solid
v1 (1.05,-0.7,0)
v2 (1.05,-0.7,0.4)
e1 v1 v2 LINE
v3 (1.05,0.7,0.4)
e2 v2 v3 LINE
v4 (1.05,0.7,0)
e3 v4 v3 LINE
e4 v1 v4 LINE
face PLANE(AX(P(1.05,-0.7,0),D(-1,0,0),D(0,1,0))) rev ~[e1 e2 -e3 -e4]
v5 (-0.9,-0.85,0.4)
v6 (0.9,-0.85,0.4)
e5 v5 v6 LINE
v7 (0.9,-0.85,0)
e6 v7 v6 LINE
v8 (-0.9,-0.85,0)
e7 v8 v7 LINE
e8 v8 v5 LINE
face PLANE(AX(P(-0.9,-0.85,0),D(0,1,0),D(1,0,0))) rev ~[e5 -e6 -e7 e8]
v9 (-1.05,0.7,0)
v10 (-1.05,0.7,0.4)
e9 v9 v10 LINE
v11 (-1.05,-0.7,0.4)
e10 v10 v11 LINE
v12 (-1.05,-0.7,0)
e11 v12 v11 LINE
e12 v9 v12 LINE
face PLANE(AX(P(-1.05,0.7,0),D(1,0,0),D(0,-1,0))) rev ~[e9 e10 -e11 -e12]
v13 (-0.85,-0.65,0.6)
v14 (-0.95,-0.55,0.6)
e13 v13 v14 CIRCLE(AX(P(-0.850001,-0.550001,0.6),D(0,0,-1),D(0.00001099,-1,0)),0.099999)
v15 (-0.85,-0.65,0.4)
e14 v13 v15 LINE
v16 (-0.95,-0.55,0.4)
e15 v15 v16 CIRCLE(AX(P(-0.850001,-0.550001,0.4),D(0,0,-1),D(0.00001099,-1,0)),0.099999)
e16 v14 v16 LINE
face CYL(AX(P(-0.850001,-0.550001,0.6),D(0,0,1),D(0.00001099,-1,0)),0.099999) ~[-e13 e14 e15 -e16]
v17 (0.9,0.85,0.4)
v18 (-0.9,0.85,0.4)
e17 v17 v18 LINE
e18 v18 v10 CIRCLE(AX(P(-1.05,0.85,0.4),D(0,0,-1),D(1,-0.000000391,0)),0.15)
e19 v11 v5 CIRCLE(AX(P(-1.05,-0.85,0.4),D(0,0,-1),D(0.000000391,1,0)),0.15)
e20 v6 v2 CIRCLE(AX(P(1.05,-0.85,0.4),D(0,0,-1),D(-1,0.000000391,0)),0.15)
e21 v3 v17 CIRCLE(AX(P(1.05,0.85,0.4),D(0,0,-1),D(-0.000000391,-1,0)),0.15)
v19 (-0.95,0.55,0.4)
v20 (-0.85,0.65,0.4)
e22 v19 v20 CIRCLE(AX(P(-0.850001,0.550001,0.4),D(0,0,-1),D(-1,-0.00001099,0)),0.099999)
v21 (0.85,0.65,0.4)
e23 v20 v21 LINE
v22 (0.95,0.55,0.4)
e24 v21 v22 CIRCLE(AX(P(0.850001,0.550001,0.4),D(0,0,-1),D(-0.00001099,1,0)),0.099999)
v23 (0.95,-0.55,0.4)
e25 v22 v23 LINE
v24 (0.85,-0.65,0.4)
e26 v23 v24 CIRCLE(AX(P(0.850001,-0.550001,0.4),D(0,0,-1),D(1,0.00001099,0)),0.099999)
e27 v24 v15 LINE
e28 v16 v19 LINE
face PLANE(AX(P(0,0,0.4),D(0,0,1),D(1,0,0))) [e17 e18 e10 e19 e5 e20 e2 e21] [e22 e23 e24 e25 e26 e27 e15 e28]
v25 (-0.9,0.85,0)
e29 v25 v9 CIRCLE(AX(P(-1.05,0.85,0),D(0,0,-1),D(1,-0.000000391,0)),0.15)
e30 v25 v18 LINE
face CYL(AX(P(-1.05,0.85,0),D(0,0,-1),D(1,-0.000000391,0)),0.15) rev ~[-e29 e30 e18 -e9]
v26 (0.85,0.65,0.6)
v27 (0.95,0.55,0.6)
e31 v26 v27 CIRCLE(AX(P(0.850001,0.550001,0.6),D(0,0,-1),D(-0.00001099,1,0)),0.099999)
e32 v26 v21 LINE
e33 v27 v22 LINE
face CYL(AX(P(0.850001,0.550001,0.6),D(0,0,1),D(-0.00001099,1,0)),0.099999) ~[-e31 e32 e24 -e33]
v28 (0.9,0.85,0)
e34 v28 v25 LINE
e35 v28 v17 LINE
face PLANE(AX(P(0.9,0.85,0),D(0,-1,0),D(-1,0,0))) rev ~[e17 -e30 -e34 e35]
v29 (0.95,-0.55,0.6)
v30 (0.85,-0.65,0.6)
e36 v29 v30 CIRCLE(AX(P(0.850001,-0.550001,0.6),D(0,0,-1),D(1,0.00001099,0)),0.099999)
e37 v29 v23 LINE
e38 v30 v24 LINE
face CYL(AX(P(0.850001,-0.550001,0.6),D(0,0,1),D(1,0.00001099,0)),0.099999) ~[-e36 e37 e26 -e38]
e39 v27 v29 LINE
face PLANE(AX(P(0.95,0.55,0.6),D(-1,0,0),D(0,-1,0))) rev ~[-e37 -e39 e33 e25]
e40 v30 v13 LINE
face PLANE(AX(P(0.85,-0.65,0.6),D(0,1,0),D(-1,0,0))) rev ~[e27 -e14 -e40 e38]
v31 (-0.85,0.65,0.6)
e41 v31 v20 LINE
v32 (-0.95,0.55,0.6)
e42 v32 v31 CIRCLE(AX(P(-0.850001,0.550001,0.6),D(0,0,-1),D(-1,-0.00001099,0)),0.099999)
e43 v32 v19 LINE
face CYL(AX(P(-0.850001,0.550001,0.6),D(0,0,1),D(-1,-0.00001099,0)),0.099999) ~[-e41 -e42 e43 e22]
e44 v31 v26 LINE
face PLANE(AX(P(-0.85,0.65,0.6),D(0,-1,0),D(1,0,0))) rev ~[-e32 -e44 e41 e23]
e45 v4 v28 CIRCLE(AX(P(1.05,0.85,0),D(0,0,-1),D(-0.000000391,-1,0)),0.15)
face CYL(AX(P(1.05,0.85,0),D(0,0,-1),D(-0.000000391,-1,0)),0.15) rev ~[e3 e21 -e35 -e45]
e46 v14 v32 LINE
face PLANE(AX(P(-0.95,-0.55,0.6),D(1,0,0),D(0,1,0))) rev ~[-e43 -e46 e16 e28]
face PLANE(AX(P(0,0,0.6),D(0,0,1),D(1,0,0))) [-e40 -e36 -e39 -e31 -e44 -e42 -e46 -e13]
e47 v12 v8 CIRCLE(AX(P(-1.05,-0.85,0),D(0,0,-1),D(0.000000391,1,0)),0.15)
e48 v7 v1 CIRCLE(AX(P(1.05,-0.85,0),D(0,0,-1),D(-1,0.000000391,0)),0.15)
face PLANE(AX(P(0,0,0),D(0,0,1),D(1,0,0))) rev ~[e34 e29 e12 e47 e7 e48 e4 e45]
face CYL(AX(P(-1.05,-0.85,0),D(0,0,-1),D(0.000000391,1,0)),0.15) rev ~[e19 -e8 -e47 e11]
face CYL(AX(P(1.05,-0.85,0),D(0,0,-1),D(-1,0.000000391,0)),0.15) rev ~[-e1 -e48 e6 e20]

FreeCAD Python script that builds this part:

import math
import FreeCAD as App
import Part
import Sketcher

V = App.Vector
Q = App.Units.Quantity

doc = App.newDocument("Part")
body = doc.addObject("PartDesign::Body", "Body")

sketch1 = doc.addObject("Sketcher::SketchObject", "Sketch")
body.addObject(sketch1)
sketch1.AttachmentSupport = (doc.XY_Plane, [""])
sketch1.MapMode = "FlatFace"
sketch1.addGeometry(Part.LineSegment(V(-0.9, -0.85, 0), V(0.9, -0.85, 0)), False)
sketch1.addGeometry(Part.ArcOfCircle(Part.Circle(V(1.05, -0.85, 0), V(0, 0, 1), 0.15), math.radians(90.000023), math.radians(179.999977)), False)
sketch1.addGeometry(Part.LineSegment(V(1.05, -0.7, 0), V(1.05, 0.7, 0)), False)
sketch1.addGeometry(Part.ArcOfCircle(Part.Circle(V(1.05, 0.85, 0), V(0, 0, 1), 0.15), math.radians(-179.999977), math.radians(-90.000023)), False)
sketch1.addGeometry(Part.LineSegment(V(0.9, 0.85, 0), V(-0.9, 0.85, 0)), False)
sketch1.addGeometry(Part.ArcOfCircle(Part.Circle(V(-1.05, 0.85, 0), V(0, 0, 1), 0.15), math.radians(-89.999977), math.radians(-0.000023)), False)
sketch1.addGeometry(Part.LineSegment(V(-1.05, 0.7, 0), V(-1.05, -0.7, 0)), False)
sketch1.addGeometry(Part.ArcOfCircle(Part.Circle(V(-1.05, -0.85, 0), V(0, 0, 1), 0.15), math.radians(0.000023), math.radians(89.999977)), False)
sketch1.addConstraint(Sketcher.Constraint("Coincident", 0, 2, 1, 2))
sketch1.addConstraint(Sketcher.Constraint("Coincident", 1, 1, 2, 1))
sketch1.addConstraint(Sketcher.Constraint("Coincident", 2, 2, 3, 2))
sketch1.addConstraint(Sketcher.Constraint("Coincident", 3, 1, 4, 1))
sketch1.addConstraint(Sketcher.Constraint("Coincident", 4, 2, 5, 2))
sketch1.addConstraint(Sketcher.Constraint("Coincident", 5, 1, 6, 1))
sketch1.addConstraint(Sketcher.Constraint("Coincident", 6, 2, 7, 2))
sketch1.addConstraint(Sketcher.Constraint("Coincident", 7, 1, 0, 1))
sketch1.addConstraint(Sketcher.Constraint("Horizontal", 0))
sketch1.addConstraint(Sketcher.Constraint("Vertical", 2))
sketch1.addConstraint(Sketcher.Constraint("Horizontal", 4))
sketch1.addConstraint(Sketcher.Constraint("Vertical", 6))
sketch1.addConstraint(Sketcher.Constraint("Equal", 1, 3))
sketch1.addConstraint(Sketcher.Constraint("Equal", 3, 5))
sketch1.addConstraint(Sketcher.Constraint("Equal", 5, 7))
sketch1.addConstraint(Sketcher.Constraint("Symmetric", 1, 3, 5, 3, -1, 1))
sketch1.addConstraint(Sketcher.Constraint("Symmetric", 3, 3, 7, 3, -1, 1))
sketch1.addConstraint(Sketcher.Constraint("Symmetric", 3, 3, 5, 3, -2))
sketch1.addConstraint(Sketcher.Constraint("Horizontal", 7, 3, 0, 2))
sketch1.addConstraint(Sketcher.Constraint("Horizontal", 5, 3, 3, 1))
sketch1.addConstraint(Sketcher.Constraint("Vertical", 3, 3, 1, 1))
sketch1.addConstraint(Sketcher.Constraint("Vertical", 7, 3, 5, 1))
sketch1.addConstraint(Sketcher.Constraint("Radius", 1, Q("0.15 mm")))
sketch1.addConstraint(Sketcher.Constraint("DistanceX", 0, 1, 0, 2, Q("1.8 mm")))
sketch1.addConstraint(Sketcher.Constraint("DistanceY", 2, 1, 2, 2, Q("1.4 mm")))
pad1 = doc.addObject("PartDesign::Pad", "Pad")
body.addObject(pad1)
pad1.Profile = sketch1
pad1.Length = 0.6
body2 = doc.addObject("PartDesign::Body", "Body001")

sketch2 = doc.addObject("Sketcher::SketchObject", "Sketch001")
body2.addObject(sketch2)
sketch2.AttachmentSupport = (doc.getObject("XY_Plane001"), [""])
sketch2.MapMode = "FlatFace"
sketch2.AttachmentOffset = App.Placement(V(0, 0, 0.6), App.Rotation())
sketch2.addGeometry(Part.LineSegment(V(-1.869811, 1.47827, 0), V(-1.869811, -1.47827, 0)), False)
sketch2.addGeometry(Part.LineSegment(V(-1.869811, -1.47827, 0), V(1.869811, -1.47827, 0)), False)
sketch2.addGeometry(Part.LineSegment(V(1.869811, -1.47827, 0), V(1.869811, 1.47827, 0)), False)
sketch2.addGeometry(Part.LineSegment(V(1.869811, 1.47827, 0), V(-1.869811, 1.47827, 0)), False)
sketch2.addGeometry(Part.LineSegment(V(0.95, 0.55, 0), V(0.95, -0.55, 0)), False)
sketch2.addGeometry(Part.ArcOfCircle(Part.Circle(V(0.850001, -0.550001, 0), V(0, 0, 1), 0.099999), math.radians(-90.00063), math.radians(0.00063)), False)
sketch2.addGeometry(Part.LineSegment(V(0.85, -0.65, 0), V(-0.85, -0.65, 0)), False)
sketch2.addGeometry(Part.ArcOfCircle(Part.Circle(V(-0.850001, -0.550001, 0), V(0, 0, 1), 0.099999), math.radians(179.99937), math.radians(270.00063)), False)
sketch2.addGeometry(Part.LineSegment(V(-0.95, -0.55, 0), V(-0.95, 0.55, 0)), False)
sketch2.addGeometry(Part.ArcOfCircle(Part.Circle(V(-0.850001, 0.550001, 0), V(0, 0, 1), 0.099999), math.radians(89.99937), math.radians(180.00063)), False)
sketch2.addGeometry(Part.LineSegment(V(-0.85, 0.65, 0), V(0.85, 0.65, 0)), False)
sketch2.addGeometry(Part.ArcOfCircle(Part.Circle(V(0.850001, 0.550001, 0), V(0, 0, 1), 0.099999), math.radians(-0.00063), math.radians(90.00063)), False)
sketch2.addConstraint(Sketcher.Constraint("Coincident", 0, 2, 1, 1))
sketch2.addConstraint(Sketcher.Constraint("Coincident", 1, 2, 2, 1))
sketch2.addConstraint(Sketcher.Constraint("Coincident", 2, 2, 3, 1))
sketch2.addConstraint(Sketcher.Constraint("Coincident", 3, 2, 0, 1))
sketch2.addConstraint(Sketcher.Constraint("Coincident", 4, 2, 5, 2))
sketch2.addConstraint(Sketcher.Constraint("Coincident", 5, 1, 6, 1))
sketch2.addConstraint(Sketcher.Constraint("Coincident", 6, 2, 7, 2))
sketch2.addConstraint(Sketcher.Constraint("Coincident", 7, 1, 8, 1))
sketch2.addConstraint(Sketcher.Constraint("Coincident", 8, 2, 9, 2))
sketch2.addConstraint(Sketcher.Constraint("Coincident", 9, 1, 10, 1))
sketch2.addConstraint(Sketcher.Constraint("Coincident", 10, 2, 11, 2))
sketch2.addConstraint(Sketcher.Constraint("Coincident", 11, 1, 4, 1))
sketch2.addConstraint(Sketcher.Constraint("Vertical", 0))
sketch2.addConstraint(Sketcher.Constraint("Horizontal", 1))
sketch2.addConstraint(Sketcher.Constraint("Vertical", 2))
sketch2.addConstraint(Sketcher.Constraint("Horizontal", 3))
sketch2.addConstraint(Sketcher.Constraint("Vertical", 4))
sketch2.addConstraint(Sketcher.Constraint("Horizontal", 6))
sketch2.addConstraint(Sketcher.Constraint("Vertical", 8))
sketch2.addConstraint(Sketcher.Constraint("Horizontal", 10))
sketch2.addConstraint(Sketcher.Constraint("Equal", 5, 7))
sketch2.addConstraint(Sketcher.Constraint("Equal", 7, 9))
sketch2.addConstraint(Sketcher.Constraint("Equal", 9, 11))
sketch2.addConstraint(Sketcher.Constraint("Symmetric", 5, 3, 9, 3, -1, 1))
sketch2.addConstraint(Sketcher.Constraint("Symmetric", 0, 2, 2, 2, -1, 1))
sketch2.addConstraint(Sketcher.Constraint("Horizontal", 7, 3, 4, 2))
sketch2.addConstraint(Sketcher.Constraint("Horizontal", 4, 2, 7, 1))
sketch2.addConstraint(Sketcher.Constraint("Horizontal", 11, 3, 8, 2))
sketch2.addConstraint(Sketcher.Constraint("Horizontal", 8, 2, 11, 1))
sketch2.addConstraint(Sketcher.Constraint("Vertical", 11, 3, 5, 1))
sketch2.addConstraint(Sketcher.Constraint("Vertical", 9, 3, 6, 2))
sketch2.addConstraint(Sketcher.Constraint("Vertical", 6, 2, 9, 1))
sketch2.addConstraint(Sketcher.Constraint("Vertical", 5, 1, 10, 2))
sketch2.addConstraint(Sketcher.Constraint("Radius", 5, Q("0.099999 mm")))
sketch2.addConstraint(Sketcher.Constraint("DistanceX", 6, 2, 6, 1, Q("1.7 mm")))
sketch2.addConstraint(Sketcher.Constraint("DistanceY", 4, 2, 4, 1, Q("1.1 mm")))
sketch2.addConstraint(Sketcher.Constraint("DistanceX", 1, 1, 1, 2, Q("3.739622 mm")))
sketch2.addConstraint(Sketcher.Constraint("DistanceY", 0, 2, 0, 1, Q("2.95654 mm")))
pad2 = doc.addObject("PartDesign::Pad", "Pad001")
body2.addObject(pad2)
pad2.Profile = sketch2
pad2.Length = 0.2
pad2.Reversed = True
doc.recompute()

boolean = doc.addObject("PartDesign::Boolean", "Boolean")
body.addObject(boolean)
boolean.Type = "Cut"
boolean.addObjects([body2])

doc.recompute()
